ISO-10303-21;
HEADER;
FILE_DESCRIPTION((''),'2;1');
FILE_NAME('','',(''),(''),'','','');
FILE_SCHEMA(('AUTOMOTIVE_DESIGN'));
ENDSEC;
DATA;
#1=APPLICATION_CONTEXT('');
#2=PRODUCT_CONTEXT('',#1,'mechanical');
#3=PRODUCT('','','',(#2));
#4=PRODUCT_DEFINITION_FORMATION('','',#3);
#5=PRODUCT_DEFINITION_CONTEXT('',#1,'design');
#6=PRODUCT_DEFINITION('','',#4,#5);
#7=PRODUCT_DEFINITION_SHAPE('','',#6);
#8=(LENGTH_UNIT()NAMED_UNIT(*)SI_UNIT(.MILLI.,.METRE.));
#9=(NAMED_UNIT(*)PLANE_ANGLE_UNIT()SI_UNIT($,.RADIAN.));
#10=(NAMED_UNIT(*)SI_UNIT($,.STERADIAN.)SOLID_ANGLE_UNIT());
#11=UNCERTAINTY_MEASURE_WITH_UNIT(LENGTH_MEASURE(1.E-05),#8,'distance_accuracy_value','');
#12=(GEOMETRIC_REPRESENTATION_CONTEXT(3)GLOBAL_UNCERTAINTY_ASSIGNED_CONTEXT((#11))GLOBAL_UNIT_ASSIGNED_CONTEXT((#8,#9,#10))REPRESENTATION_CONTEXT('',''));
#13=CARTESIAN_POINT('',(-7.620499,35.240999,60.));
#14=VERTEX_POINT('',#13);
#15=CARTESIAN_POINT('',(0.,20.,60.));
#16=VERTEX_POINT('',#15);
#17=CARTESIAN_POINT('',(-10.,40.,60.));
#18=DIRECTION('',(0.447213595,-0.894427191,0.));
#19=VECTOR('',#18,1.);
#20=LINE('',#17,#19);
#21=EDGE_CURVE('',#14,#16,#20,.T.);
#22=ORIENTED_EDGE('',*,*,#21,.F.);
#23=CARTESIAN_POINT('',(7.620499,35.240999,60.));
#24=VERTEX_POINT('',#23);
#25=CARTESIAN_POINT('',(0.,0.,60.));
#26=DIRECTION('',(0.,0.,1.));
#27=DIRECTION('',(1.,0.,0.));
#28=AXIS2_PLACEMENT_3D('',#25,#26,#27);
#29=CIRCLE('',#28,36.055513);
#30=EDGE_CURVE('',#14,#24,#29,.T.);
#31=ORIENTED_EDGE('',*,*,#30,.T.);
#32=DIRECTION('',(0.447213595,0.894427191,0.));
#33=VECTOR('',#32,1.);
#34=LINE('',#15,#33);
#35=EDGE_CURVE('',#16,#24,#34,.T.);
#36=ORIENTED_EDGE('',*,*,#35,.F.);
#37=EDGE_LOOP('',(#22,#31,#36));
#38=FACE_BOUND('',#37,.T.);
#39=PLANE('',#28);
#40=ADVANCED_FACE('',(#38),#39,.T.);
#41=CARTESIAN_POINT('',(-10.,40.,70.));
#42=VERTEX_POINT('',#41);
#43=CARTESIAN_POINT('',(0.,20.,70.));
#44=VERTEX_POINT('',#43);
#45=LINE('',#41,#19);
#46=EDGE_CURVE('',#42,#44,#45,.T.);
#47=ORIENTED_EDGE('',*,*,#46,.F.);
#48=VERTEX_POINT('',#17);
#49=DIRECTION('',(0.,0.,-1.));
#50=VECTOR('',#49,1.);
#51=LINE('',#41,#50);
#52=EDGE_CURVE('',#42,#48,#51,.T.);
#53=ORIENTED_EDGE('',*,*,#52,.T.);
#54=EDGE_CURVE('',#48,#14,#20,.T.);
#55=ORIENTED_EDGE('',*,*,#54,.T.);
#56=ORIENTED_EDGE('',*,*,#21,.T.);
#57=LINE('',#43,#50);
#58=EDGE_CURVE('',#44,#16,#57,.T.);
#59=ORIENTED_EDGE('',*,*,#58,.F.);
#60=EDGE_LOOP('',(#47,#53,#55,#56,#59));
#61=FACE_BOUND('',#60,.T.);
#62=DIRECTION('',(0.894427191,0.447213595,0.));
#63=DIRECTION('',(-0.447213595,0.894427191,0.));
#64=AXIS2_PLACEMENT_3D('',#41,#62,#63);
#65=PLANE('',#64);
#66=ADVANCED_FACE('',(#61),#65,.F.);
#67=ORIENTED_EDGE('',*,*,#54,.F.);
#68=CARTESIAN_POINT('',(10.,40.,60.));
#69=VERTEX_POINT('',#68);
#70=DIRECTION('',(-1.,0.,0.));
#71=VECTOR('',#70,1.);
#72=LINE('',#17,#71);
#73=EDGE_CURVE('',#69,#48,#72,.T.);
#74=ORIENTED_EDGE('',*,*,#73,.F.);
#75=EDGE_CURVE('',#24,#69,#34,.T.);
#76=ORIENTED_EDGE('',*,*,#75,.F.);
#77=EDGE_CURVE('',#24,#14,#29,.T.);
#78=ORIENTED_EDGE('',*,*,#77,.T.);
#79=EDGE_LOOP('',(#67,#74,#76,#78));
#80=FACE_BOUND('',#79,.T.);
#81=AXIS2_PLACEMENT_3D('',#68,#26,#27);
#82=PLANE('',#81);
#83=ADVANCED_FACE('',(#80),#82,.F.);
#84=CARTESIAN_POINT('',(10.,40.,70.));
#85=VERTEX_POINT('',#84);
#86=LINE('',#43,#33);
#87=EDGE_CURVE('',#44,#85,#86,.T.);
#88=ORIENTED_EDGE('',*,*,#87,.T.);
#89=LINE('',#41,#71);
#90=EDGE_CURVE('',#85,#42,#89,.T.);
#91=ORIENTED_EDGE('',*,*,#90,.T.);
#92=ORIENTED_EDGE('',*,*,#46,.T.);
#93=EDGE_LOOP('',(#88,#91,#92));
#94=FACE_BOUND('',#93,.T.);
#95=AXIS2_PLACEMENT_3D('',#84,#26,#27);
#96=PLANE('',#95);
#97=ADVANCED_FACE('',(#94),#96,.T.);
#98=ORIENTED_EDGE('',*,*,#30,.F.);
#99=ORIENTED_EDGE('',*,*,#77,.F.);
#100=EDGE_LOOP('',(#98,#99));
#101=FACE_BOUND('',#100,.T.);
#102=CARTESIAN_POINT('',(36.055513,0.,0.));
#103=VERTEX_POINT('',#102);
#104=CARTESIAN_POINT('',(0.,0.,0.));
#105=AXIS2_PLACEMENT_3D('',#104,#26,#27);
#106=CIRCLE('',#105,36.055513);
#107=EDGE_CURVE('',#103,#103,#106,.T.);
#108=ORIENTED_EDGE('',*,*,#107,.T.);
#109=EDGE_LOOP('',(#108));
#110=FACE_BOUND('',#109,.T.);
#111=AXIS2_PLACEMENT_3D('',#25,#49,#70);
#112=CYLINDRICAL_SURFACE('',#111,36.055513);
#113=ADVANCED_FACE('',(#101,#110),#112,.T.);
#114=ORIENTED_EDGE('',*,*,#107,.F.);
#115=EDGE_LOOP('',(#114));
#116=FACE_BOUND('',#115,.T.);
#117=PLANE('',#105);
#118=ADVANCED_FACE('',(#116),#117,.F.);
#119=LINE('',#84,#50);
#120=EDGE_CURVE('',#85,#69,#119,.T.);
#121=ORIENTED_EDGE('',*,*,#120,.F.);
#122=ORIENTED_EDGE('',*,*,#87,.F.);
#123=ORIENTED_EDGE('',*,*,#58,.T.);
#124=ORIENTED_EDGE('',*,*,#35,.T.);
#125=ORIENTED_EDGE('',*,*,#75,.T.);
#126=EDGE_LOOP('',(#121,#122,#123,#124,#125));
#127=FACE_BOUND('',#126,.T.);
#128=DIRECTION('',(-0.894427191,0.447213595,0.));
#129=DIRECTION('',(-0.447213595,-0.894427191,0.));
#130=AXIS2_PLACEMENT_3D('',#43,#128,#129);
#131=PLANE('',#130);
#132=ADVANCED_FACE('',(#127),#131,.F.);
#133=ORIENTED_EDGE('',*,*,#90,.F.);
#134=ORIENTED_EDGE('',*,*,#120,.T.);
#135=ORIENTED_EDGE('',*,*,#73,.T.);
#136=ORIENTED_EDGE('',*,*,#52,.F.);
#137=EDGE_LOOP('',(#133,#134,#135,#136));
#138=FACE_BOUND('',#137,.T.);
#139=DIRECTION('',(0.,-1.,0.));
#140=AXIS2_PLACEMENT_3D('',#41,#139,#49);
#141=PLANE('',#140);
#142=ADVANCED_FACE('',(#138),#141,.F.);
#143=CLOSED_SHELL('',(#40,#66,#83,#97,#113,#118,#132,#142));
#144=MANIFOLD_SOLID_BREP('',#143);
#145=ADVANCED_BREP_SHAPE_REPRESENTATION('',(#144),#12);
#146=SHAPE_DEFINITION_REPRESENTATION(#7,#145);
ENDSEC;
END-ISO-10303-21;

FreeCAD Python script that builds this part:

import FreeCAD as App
import Part
import Sketcher

V = App.Vector
Q = App.Units.Quantity


def add_polygon(sketch, points):
    """Adds a closed chain of lines whose ends are joined by coincident constraints."""
    first, n = sketch.GeometryCount, len(points)
    for a, b in zip(points, points[1:] + points[:1]):
        sketch.addGeometry(Part.LineSegment(App.Vector(*a, 0), App.Vector(*b, 0)), False)
    for i in range(n):
        sketch.addConstraint(Sketcher.Constraint("Coincident", first + i, 2, first + (i + 1) % n, 1))

doc = App.newDocument("Part")
body = doc.addObject("PartDesign::Body", "Body")

# Sketch on XY plane
sketch1 = body.newObject("Sketcher::SketchObject", "Sketch")
sketch1.AttachmentSupport = (doc.getObject("XY_Plane"), [""])
sketch1.MapMode = "FlatFace"
sketch1.addGeometry(Part.Circle(V(0, 0, 0), V(0, 0, 1), 36.055513), False)
sketch1.addConstraint([
    Sketcher.Constraint("Coincident", 0, 3, -1, 1),
    Sketcher.Constraint("Diameter", 0, Q("72.111026 mm")),
])
pad1 = body.newObject("PartDesign::Pad", "Pad")
pad1.Profile = sketch1
pad1.Length = 60

# Sketch on XY plane
sketch2 = body.newObject("Sketcher::SketchObject", "Sketch001")
sketch2.AttachmentSupport = (doc.getObject("XY_Plane"), [""])
sketch2.MapMode = "FlatFace"
sketch2.AttachmentOffset = App.Placement(V(0, 0, 60), App.Rotation())
add_polygon(sketch2, [(-10, 40), (0, 20), (10, 40)])  # lines 0-2
sketch2.addConstraint([
    Sketcher.Constraint("Horizontal", 2),
    Sketcher.Constraint("PointOnObject", 0, 2, -2),
    Sketcher.Constraint("Equal", 0, 1),
    Sketcher.Constraint("DistanceX", 2, 2, 2, 1, Q("20 mm")),
    Sketcher.Constraint("DistanceY", -1, 1, 0, 2, Q("20 mm")),
    Sketcher.Constraint("DistanceY", -1, 1, 1, 2, Q("40 mm")),
])
pad2 = body.newObject("PartDesign::Pad", "Pad001")
pad2.Profile = sketch2
pad2.Length = 10

doc.recompute()
